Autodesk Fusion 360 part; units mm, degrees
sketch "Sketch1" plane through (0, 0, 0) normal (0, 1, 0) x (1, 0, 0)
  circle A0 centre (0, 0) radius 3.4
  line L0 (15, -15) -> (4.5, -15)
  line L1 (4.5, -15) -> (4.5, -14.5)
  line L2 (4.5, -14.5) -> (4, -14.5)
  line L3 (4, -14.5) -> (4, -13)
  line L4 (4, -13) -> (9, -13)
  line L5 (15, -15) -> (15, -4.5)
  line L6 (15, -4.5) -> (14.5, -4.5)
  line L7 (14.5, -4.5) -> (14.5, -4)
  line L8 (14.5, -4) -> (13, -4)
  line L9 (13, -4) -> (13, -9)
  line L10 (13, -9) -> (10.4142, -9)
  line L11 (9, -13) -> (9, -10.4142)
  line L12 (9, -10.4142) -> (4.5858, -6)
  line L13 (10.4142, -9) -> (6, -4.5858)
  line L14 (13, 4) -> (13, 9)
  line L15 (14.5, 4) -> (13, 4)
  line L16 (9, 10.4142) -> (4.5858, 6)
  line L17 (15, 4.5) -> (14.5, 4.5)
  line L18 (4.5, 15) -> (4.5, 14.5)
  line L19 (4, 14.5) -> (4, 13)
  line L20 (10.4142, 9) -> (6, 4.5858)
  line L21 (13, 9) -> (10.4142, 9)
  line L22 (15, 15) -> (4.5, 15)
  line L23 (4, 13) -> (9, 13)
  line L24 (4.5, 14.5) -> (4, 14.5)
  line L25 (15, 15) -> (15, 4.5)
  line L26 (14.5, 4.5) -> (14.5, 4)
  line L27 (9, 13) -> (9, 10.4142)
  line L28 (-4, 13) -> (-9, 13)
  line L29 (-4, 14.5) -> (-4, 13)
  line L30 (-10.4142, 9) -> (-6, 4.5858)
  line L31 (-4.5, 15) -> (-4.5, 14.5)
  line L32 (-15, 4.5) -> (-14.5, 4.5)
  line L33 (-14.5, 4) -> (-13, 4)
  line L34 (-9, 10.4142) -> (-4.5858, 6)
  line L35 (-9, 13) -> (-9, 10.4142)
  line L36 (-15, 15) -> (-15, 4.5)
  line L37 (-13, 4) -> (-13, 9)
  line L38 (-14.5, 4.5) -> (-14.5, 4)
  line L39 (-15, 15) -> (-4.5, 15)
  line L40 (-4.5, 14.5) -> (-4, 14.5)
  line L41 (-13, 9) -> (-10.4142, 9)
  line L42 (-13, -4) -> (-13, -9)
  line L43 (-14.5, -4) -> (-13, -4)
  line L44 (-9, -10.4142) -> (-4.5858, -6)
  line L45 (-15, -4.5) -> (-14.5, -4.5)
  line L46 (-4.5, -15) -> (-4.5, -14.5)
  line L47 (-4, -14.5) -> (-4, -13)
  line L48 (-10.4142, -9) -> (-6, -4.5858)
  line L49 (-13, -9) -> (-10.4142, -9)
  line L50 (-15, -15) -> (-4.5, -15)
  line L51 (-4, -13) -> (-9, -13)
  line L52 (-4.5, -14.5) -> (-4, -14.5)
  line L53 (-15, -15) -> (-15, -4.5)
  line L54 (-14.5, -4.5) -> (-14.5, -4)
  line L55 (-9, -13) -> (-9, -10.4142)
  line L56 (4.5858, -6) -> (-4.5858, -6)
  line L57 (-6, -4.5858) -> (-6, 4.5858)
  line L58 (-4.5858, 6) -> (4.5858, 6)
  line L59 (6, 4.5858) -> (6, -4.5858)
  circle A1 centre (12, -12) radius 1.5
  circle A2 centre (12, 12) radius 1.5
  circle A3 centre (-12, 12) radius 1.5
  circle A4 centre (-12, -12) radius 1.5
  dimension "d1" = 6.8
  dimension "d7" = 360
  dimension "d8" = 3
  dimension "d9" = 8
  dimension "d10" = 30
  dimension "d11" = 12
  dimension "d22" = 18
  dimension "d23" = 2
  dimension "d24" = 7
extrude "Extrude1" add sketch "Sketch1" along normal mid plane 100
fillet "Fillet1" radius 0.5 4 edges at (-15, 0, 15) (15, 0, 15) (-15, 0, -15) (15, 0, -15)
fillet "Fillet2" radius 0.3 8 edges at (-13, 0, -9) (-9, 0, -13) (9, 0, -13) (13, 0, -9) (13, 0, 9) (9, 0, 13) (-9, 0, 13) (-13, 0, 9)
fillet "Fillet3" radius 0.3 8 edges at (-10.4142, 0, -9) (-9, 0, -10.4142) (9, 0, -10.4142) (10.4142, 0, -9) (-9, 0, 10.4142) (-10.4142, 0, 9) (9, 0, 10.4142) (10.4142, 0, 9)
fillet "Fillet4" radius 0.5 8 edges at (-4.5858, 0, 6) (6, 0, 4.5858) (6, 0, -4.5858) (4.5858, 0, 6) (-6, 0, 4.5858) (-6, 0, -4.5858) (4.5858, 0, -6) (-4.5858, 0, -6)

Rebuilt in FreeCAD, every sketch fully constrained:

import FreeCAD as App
import Part
import Sketcher
from FreeCAD import Vector
Q = App.Units.Quantity


def edges_at(feature, points):
    """Names of the edges that pass closest to the given points."""
    edges = feature.Shape.Edges
    near = lambda p: min(range(len(edges)), key=lambda i: edges[i].distToShape(Part.Vertex(*p))[0])
    return sorted({f"Edge{near(p) + 1}" for p in points})


def add_polygon(sketch, points):
    """Adds a closed chain of lines whose ends are joined by coincident constraints."""
    first, n = sketch.GeometryCount, len(points)
    for a, b in zip(points, points[1:] + points[:1]):
        sketch.addGeometry(Part.LineSegment(App.Vector(*a, 0), App.Vector(*b, 0)), False)
    for i in range(n):
        sketch.addConstraint(Sketcher.Constraint("Coincident", first + i, 2, first + (i + 1) % n, 1))

doc = App.newDocument("Part")
params = doc.addObject("Spreadsheet::Sheet", "Params")
for row, (alias, value) in enumerate([
    ("sketch1_diameter", "3 mm"),
    ("sketch1_diameter2", "6.8 mm"),
    ("sketch1_width", "5 mm"),
    ("sketch1_width2", "10.5 mm"),
    ("sketch1_width3", "0.5 mm"),
    ("pad1_length", "100 mm"),
    ("fillet_radius", "0.5 mm"),
    ("fillet2_radius", "0.3 mm"),
    ("fillet3_radius", "0.3 mm"),
    ("fillet4_radius", "0.5 mm"),
], start=1):
    params.set(f"A{row}", alias)
    params.set(f"B{row}", "=" + value)
    params.setAlias(f"B{row}", alias)

body = doc.addObject("PartDesign::Body", "Body")

sketch1 = body.newObject("Sketcher::SketchObject", "Sketch")
sketch1.AttachmentSupport = (doc.getObject("XZ_Plane"), [""])
sketch1.MapMode = "FlatFace"
add_polygon(sketch1, [(4.5, 15), (15, 15), (15, 4.5), (14.5, 4.5), (14.5, 4), (13, 4), (13, 9), (10.4, 9), (6, 4.6), (6, -4.6), (10.4, -9), (13, -9), (13, -4), (14.5, -4), (14.5, -4.5), (15, -4.5), (15, -15), (4.5, -15), (4.5, -14.5), (4, -14.5), (4, -13), (9, -13), (9, -10.4), (4.6, -6), (-4.6, -6), (-9, -10.4), (-9, -13), (-4, -13), (-4, -14.5), (-4.5, -14.5), (-4.5, -15), (-15, -15), (-15, -4.5), (-14.5, -4.5), (-14.5, -4), (-13, -4), (-13, -9), (-10.4, -9), (-6, -4.6), (-6, 4.6), (-10.4, 9), (-13, 9), (-13, 4), (-14.5, 4), (-14.5, 4.5), (-15, 4.5), (-15, 15), (-4.5, 15), (-4.5, 14.5), (-4, 14.5), (-4, 13), (-9, 13), (-9, 10.4), (-4.6, 6), (4.6, 6), (9, 10.4), (9, 13), (4, 13), (4, 14.5), (4.5, 14.5)])
sketch1.addGeometry(Part.Circle(Vector(-12, 12, 0), Vector(0, 0, 1), 1.5), False)
sketch1.addGeometry(Part.Circle(Vector(12, 12, 0), Vector(0, 0, 1), 1.5), False)
sketch1.addGeometry(Part.Circle(Vector(-12, -12, 0), Vector(0, 0, 1), 1.5), False)
sketch1.addGeometry(Part.Circle(Vector(0, 0, 0), Vector(0, 0, 1), 3.4), False)
sketch1.addGeometry(Part.Circle(Vector(12, -12, 0), Vector(0, 0, 1), 1.5), False)
sketch1.addConstraint(Sketcher.Constraint("Horizontal", 0))
sketch1.addConstraint(Sketcher.Constraint("Vertical", 1))
sketch1.addConstraint(Sketcher.Constraint("Horizontal", 2))
sketch1.addConstraint(Sketcher.Constraint("Vertical", 3))
sketch1.addConstraint(Sketcher.Constraint("Horizontal", 4))
sketch1.addConstraint(Sketcher.Constraint("Vertical", 5))
sketch1.addConstraint(Sketcher.Constraint("Horizontal", 6))
sketch1.addConstraint(Sketcher.Constraint("Vertical", 8))
sketch1.addConstraint(Sketcher.Constraint("Horizontal", 10))
sketch1.addConstraint(Sketcher.Constraint("Vertical", 11))
sketch1.addConstraint(Sketcher.Constraint("Horizontal", 12))
sketch1.addConstraint(Sketcher.Constraint("Vertical", 13))
sketch1.addConstraint(Sketcher.Constraint("Horizontal", 14))
sketch1.addConstraint(Sketcher.Constraint("Vertical", 15))
sketch1.addConstraint(Sketcher.Constraint("Horizontal", 16))
sketch1.addConstraint(Sketcher.Constraint("Vertical", 17))
sketch1.addConstraint(Sketcher.Constraint("Horizontal", 18))
sketch1.addConstraint(Sketcher.Constraint("Vertical", 19))
sketch1.addConstraint(Sketcher.Constraint("Horizontal", 20))
sketch1.addConstraint(Sketcher.Constraint("Vertical", 21))
sketch1.addConstraint(Sketcher.Constraint("Horizontal", 23))
sketch1.addConstraint(Sketcher.Constraint("Vertical", 25))
sketch1.addConstraint(Sketcher.Constraint("Horizontal", 26))
sketch1.addConstraint(Sketcher.Constraint("Vertical", 27))
sketch1.addConstraint(Sketcher.Constraint("Horizontal", 28))
sketch1.addConstraint(Sketcher.Constraint("Vertical", 29))
sketch1.addConstraint(Sketcher.Constraint("Horizontal", 30))
sketch1.addConstraint(Sketcher.Constraint("Vertical", 31))
sketch1.addConstraint(Sketcher.Constraint("Horizontal", 32))
sketch1.addConstraint(Sketcher.Constraint("Vertical", 33))
sketch1.addConstraint(Sketcher.Constraint("Horizontal", 34))
sketch1.addConstraint(Sketcher.Constraint("Vertical", 35))
sketch1.addConstraint(Sketcher.Constraint("Horizontal", 36))
sketch1.addConstraint(Sketcher.Constraint("Vertical", 38))
sketch1.addConstraint(Sketcher.Constraint("Horizontal", 40))
sketch1.addConstraint(Sketcher.Constraint("Vertical", 41))
sketch1.addConstraint(Sketcher.Constraint("Horizontal", 42))
sketch1.addConstraint(Sketcher.Constraint("Vertical", 43))
sketch1.addConstraint(Sketcher.Constraint("Horizontal", 44))
sketch1.addConstraint(Sketcher.Constraint("Vertical", 45))
sketch1.addConstraint(Sketcher.Constraint("Horizontal", 46))
sketch1.addConstraint(Sketcher.Constraint("Vertical", 47))
sketch1.addConstraint(Sketcher.Constraint("Horizontal", 48))
sketch1.addConstraint(Sketcher.Constraint("Vertical", 49))
sketch1.addConstraint(Sketcher.Constraint("Horizontal", 50))
sketch1.addConstraint(Sketcher.Constraint("Vertical", 51))
sketch1.addConstraint(Sketcher.Constraint("Horizontal", 53))
sketch1.addConstraint(Sketcher.Constraint("Vertical", 55))
sketch1.addConstraint(Sketcher.Constraint("Horizontal", 56))
sketch1.addConstraint(Sketcher.Constraint("Vertical", 57))
sketch1.addConstraint(Sketcher.Constraint("Horizontal", 58))
sketch1.addConstraint(Sketcher.Constraint("Vertical", 59))
sketch1.addConstraint(Sketcher.Constraint("Coincident", 63, 3, -1, 1))
sketch1.addConstraint(Sketcher.Constraint("Equal", 60, 61))
sketch1.addConstraint(Sketcher.Constraint("Equal", 61, 62))
sketch1.addConstraint(Sketcher.Constraint("Equal", 62, 64))
sketch1.addConstraint(Sketcher.Constraint("Symmetric", 61, 3, 62, 3, -1, 1))
sketch1.addConstraint(Sketcher.Constraint("Symmetric", 60, 3, 64, 3, -1, 1))
sketch1.addConstraint(Sketcher.Constraint("Symmetric", 0, 2, 30, 2, -1, 1))
sketch1.addConstraint(Sketcher.Constraint("Symmetric", 2, 2, 32, 2, -1, 1))
sketch1.addConstraint(Sketcher.Constraint("Symmetric", 4, 2, 34, 2, -1, 1))
sketch1.addConstraint(Sketcher.Constraint("Symmetric", 6, 2, 36, 2, -1, 1))
sketch1.addConstraint(Sketcher.Constraint("Symmetric", 7, 2, 37, 2, -1, 1))
sketch1.addConstraint(Sketcher.Constraint("Symmetric", 9, 2, 39, 2, -1, 1))
sketch1.addConstraint(Sketcher.Constraint("Symmetric", 11, 2, 41, 2, -1, 1))
sketch1.addConstraint(Sketcher.Constraint("Symmetric", 13, 2, 43, 2, -1, 1))
sketch1.addConstraint(Sketcher.Constraint("Symmetric", 15, 2, 45, 2, -1, 1))
sketch1.addConstraint(Sketcher.Constraint("Symmetric", 17, 2, 47, 2, -1, 1))
sketch1.addConstraint(Sketcher.Constraint("Symmetric", 19, 2, 49, 2, -1, 1))
sketch1.addConstraint(Sketcher.Constraint("Symmetric", 21, 2, 51, 2, -1, 1))
sketch1.addConstraint(Sketcher.Constraint("Symmetric", 22, 2, 52, 2, -1, 1))
sketch1.addConstraint(Sketcher.Constraint("Symmetric", 24, 2, 54, 2, -1, 1))
sketch1.addConstraint(Sketcher.Constraint("Symmetric", 26, 2, 56, 2, -1, 1))
sketch1.addConstraint(Sketcher.Constraint("Symmetric", 28, 2, 58, 2, -1, 1))
sketch1.addConstraint(Sketcher.Constraint("Symmetric", 60, 3, 61, 3, -2))
sketch1.addConstraint(Sketcher.Constraint("Symmetric", 21, 2, 24, 2, -2))
sketch1.addConstraint(Sketcher.Constraint("Symmetric", 19, 2, 26, 2, -2))
sketch1.addConstraint(Sketcher.Constraint("Symmetric", 17, 2, 28, 2, -2))
sketch1.addConstraint(Sketcher.Constraint("Symmetric", 15, 2, 30, 2, -2))
sketch1.addConstraint(Sketcher.Constraint("Symmetric", 13, 2, 32, 2, -2))
sketch1.addConstraint(Sketcher.Constraint("Symmetric", 11, 2, 34, 2, -2))
sketch1.addConstraint(Sketcher.Constraint("Symmetric", 9, 2, 36, 2, -2))
sketch1.addConstraint(Sketcher.Constraint("Perpendicular", 7, 9))
sketch1.addConstraint(Sketcher.Constraint("Parallel", 9, 22))
sketch1.addConstraint(Sketcher.Constraint("Perpendicular", 22, 24))
sketch1.addConstraint(Sketcher.Constraint("Perpendicular", 37, 39))
sketch1.addConstraint(Sketcher.Constraint("Perpendicular", 52, 54))
sketch1.addConstraint(Sketcher.Constraint("Horizontal", 8, 2, 37, 2))
sketch1.addConstraint(Sketcher.Constraint("Equal", 14, 18))
sketch1.addConstraint(Sketcher.Constraint("Equal", 46, 1))
sketch1.addConstraint(Sketcher.Constraint("Equal", 58, 3))
sketch1.addConstraint(Sketcher.Constraint("Equal", 56, 5))
sketch1.addConstraint(Sketcher.Constraint("Equal", 53, 8))
sketch1.addConstraint(Sketcher.Constraint("Equal", 13, 17))
sketch1.addConstraint(Sketcher.Constraint("Equal", 42, 19))
sketch1.addConstraint(Sketcher.Constraint("Equal", 40, 21))
sketch1.addConstraint(Sketcher.Constraint("Equal", 9, 22))
sketch1.addConstraint(Sketcher.Constraint("Diameter", 60, Q("3 mm")))
sketch1.addConstraint(Sketcher.Constraint("Diameter", 63, Q("6.8 mm")))
sketch1.addConstraint(Sketcher.Constraint("DistanceX", 60, 3, -1, 1, Q("12 mm")))
sketch1.addConstraint(Sketcher.Constraint("DistanceY", -1, 1, 60, 3, Q("12 mm")))
sketch1.addConstraint(Sketcher.Constraint("DistanceX", 20, 1, 20, 2, Q("5 mm")))
sketch1.addConstraint(Sketcher.Constraint("DistanceX", 0, 1, 0, 2, Q("10.5 mm")))
sketch1.addConstraint(Sketcher.Constraint("DistanceX", 2, 2, 2, 1, Q("0.5 mm")))
sketch1.addConstraint(Sketcher.Constraint("DistanceX", 4, 2, 4, 1, Q("1.5 mm")))
sketch1.addConstraint(Sketcher.Constraint("DistanceX", -1, 1, 0, 2, Q("15 mm")))
sketch1.addConstraint(Sketcher.Constraint("DistanceX", -1, 1, 7, 2, Q("6 mm")))
sketch1.addConstraint(Sketcher.Constraint("DistanceX", 6, 2, 6, 1, Q("2.5858 mm")))
sketch1.setExpression("Constraints[157]", "Params.sketch1_diameter")
sketch1.setExpression("Constraints[158]", "Params.sketch1_diameter2")
sketch1.setExpression("Constraints[161]", "Params.sketch1_width")
sketch1.setExpression("Constraints[162]", "Params.sketch1_width2")
sketch1.setExpression("Constraints[163]", "Params.sketch1_width3")
pad1 = body.newObject("PartDesign::Pad", "Pad")
pad1.Profile = sketch1
pad1.setExpression("Length", "Params.pad1_length")
pad1.Midplane = True
doc.recompute()

fillet = body.newObject("PartDesign::Fillet", "Fillet")
fillet.Base = (pad1, edges_at(pad1, [
    (-15, 0, 15),
    (15, 0, 15),
    (-15, 0, -15),
    (15, 0, -15),
]))
fillet.setExpression("Radius", "Params.fillet_radius")
doc.recompute()

fillet2 = body.newObject("PartDesign::Fillet", "Fillet001")
fillet2.Base = (fillet, edges_at(fillet, [
    (-13, 0, -9),
    (-9, 0, -13),
    (9, 0, -13),
    (13, 0, -9),
    (13, 0, 9),
    (9, 0, 13),
    (-9, 0, 13),
    (-13, 0, 9),
]))
fillet2.setExpression("Radius", "Params.fillet2_radius")
doc.recompute()

fillet3 = body.newObject("PartDesign::Fillet", "Fillet002")
fillet3.Base = (fillet2, edges_at(fillet2, [
    (-10.414, 0, -9),
    (-9, 0, -10.414),
    (9, 0, -10.414),
    (10.414, 0, -9),
    (-9, 0, 10.414),
    (-10.414, 0, 9),
    (9, 0, 10.414),
    (10.414, 0, 9),
]))
fillet3.setExpression("Radius", "Params.fillet3_radius")
doc.recompute()

fillet4 = body.newObject("PartDesign::Fillet", "Fillet003")
fillet4.Base = (fillet3, edges_at(fillet3, [
    (-4.586, 0, 6),
    (6, 0, 4.586),
    (6, 0, -4.586),
    (4.586, 0, 6),
    (-6, 0, 4.586),
    (-6, 0, -4.586),
    (4.586, 0, -6),
    (-4.586, 0, -6),
]))
fillet4.setExpression("Radius", "Params.fillet4_radius")

doc.recompute()
